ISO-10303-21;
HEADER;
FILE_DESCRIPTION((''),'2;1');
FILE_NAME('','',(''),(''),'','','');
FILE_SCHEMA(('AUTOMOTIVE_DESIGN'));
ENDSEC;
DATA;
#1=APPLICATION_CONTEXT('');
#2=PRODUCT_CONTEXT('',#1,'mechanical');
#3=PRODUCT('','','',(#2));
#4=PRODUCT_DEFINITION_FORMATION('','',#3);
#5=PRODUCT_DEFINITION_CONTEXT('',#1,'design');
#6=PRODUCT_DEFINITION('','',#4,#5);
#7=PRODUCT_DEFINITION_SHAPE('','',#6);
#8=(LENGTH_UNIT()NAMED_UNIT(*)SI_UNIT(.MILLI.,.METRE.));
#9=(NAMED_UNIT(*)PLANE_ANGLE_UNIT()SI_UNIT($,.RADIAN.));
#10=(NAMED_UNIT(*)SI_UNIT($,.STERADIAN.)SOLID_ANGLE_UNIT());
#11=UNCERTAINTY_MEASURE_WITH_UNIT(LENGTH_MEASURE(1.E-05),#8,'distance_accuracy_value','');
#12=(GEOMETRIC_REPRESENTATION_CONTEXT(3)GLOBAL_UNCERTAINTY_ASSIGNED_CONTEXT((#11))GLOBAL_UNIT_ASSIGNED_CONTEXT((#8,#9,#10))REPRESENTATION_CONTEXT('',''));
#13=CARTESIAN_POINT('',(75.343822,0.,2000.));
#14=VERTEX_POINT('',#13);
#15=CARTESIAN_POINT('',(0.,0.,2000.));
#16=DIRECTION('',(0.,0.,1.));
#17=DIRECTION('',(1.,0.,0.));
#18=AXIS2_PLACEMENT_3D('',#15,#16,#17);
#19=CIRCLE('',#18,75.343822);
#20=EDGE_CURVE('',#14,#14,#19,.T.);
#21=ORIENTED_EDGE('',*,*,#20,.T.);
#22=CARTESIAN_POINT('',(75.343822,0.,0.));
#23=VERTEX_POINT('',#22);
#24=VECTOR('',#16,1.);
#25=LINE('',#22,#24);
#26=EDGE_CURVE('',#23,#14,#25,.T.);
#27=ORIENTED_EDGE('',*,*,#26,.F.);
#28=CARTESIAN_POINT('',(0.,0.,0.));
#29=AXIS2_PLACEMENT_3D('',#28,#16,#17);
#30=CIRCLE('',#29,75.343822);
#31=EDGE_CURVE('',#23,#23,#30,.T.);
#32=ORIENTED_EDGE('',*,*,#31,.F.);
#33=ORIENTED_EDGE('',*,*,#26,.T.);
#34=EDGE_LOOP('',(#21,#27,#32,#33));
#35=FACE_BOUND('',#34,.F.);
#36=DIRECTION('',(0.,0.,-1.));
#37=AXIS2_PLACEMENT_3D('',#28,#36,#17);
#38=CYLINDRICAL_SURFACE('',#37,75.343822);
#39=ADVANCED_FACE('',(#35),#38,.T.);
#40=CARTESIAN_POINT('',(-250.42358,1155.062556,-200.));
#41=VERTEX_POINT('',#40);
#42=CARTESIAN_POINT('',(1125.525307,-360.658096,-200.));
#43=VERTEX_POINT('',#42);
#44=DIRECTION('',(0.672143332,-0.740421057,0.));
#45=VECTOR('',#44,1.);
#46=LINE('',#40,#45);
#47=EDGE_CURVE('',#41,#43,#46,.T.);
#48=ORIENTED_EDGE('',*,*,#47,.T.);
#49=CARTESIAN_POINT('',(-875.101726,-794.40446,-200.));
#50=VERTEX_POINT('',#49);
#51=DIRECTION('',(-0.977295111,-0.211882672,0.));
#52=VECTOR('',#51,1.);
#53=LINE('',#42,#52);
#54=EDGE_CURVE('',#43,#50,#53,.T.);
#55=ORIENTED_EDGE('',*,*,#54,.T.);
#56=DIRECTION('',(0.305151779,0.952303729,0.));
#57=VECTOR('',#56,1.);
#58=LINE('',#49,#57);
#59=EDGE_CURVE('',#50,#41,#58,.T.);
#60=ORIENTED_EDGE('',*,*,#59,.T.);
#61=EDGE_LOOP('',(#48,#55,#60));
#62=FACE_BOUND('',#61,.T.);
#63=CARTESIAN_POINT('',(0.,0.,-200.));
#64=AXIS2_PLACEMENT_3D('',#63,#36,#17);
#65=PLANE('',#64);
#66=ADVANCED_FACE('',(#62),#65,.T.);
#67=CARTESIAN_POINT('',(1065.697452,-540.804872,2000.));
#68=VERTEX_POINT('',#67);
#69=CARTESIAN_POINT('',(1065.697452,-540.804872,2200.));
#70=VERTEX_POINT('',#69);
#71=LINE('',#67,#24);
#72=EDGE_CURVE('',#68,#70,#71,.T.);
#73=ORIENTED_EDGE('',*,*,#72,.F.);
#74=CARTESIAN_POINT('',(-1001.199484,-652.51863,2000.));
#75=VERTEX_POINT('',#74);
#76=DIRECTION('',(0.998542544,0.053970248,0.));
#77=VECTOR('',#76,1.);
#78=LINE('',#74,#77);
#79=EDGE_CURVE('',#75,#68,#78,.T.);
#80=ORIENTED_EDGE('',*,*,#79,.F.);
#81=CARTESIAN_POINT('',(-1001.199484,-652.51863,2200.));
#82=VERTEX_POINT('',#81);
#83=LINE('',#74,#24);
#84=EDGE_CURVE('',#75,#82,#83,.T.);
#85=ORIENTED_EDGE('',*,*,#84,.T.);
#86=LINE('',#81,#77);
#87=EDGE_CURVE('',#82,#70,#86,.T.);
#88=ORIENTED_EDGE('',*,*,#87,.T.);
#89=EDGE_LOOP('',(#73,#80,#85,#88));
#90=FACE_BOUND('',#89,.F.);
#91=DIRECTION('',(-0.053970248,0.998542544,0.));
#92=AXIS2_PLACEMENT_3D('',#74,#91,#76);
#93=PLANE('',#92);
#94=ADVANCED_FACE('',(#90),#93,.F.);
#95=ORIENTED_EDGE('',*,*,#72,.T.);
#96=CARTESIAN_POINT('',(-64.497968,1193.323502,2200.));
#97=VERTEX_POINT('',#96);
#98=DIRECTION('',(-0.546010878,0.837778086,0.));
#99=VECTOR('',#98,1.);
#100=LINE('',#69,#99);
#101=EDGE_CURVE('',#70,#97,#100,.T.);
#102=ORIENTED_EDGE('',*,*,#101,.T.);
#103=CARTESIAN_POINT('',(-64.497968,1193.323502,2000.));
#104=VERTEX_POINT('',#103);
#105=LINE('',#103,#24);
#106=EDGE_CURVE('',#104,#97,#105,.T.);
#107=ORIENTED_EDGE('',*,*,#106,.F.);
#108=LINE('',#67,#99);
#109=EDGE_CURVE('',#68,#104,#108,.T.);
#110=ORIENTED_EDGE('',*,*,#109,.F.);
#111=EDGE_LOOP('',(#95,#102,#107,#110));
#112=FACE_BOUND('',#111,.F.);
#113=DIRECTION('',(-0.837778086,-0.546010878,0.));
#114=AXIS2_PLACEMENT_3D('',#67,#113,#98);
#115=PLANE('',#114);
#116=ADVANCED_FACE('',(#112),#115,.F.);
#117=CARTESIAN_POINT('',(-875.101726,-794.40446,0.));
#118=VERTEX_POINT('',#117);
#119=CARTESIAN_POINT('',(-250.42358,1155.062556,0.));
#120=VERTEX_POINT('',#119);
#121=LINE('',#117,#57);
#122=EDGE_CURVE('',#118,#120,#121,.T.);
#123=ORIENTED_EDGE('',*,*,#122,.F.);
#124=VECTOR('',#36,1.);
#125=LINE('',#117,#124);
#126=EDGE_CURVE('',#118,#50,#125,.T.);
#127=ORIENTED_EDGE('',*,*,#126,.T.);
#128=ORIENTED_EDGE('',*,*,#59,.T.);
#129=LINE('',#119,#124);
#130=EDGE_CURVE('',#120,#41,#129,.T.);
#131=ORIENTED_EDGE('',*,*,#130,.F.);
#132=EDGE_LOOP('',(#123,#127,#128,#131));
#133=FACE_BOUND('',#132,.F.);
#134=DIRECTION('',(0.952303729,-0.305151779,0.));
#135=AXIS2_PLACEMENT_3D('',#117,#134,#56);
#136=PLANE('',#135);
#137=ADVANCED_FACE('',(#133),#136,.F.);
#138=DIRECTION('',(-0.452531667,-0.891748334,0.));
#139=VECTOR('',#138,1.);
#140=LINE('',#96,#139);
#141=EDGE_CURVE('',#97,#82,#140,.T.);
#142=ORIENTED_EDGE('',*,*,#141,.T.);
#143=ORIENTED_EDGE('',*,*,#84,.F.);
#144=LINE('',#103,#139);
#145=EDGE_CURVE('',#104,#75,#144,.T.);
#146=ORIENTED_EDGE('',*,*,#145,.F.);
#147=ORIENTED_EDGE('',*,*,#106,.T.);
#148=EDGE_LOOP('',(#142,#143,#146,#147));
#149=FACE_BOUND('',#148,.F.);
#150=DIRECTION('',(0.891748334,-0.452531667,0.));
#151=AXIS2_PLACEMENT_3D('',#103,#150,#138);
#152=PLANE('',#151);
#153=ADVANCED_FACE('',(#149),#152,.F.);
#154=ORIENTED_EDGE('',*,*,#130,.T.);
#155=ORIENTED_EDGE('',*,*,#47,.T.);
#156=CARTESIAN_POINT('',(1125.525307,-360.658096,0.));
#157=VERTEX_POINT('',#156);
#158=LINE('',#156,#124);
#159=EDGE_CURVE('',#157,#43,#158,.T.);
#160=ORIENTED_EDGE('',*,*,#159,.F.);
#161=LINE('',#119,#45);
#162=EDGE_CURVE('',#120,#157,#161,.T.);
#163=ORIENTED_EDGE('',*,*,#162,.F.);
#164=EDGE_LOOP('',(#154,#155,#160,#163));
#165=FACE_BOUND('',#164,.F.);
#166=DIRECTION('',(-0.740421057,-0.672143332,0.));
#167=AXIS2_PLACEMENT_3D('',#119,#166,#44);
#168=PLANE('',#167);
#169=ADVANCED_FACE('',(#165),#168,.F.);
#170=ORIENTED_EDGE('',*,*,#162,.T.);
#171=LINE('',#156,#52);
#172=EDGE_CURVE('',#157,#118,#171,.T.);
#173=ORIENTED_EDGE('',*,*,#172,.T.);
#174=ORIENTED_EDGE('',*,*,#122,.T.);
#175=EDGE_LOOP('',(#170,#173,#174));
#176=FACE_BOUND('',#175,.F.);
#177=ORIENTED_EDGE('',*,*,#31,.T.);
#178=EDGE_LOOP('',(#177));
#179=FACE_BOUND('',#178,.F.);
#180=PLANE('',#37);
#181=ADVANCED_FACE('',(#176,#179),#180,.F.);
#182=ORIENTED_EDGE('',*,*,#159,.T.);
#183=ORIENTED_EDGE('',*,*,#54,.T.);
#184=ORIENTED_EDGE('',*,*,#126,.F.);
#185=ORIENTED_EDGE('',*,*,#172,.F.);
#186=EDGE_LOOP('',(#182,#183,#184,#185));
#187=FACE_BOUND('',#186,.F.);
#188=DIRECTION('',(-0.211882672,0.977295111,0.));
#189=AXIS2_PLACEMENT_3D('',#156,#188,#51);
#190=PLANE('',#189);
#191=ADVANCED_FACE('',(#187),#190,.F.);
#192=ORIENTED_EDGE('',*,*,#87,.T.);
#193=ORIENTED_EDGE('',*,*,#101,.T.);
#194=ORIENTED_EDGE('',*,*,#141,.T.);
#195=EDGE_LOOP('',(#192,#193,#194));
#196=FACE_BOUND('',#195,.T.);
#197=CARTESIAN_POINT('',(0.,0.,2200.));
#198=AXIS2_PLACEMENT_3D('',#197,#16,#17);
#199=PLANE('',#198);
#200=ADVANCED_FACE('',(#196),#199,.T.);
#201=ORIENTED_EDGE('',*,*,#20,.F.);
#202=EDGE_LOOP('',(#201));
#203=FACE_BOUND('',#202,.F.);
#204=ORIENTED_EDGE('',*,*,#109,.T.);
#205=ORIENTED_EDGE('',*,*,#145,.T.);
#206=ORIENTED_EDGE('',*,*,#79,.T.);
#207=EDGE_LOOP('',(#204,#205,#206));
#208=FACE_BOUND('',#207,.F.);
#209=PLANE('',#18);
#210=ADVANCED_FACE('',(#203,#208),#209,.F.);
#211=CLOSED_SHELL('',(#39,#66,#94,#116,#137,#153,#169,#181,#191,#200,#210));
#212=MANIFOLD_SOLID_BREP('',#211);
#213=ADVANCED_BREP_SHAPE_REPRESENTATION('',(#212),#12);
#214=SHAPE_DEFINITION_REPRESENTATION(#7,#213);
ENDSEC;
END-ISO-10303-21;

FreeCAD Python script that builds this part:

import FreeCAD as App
import Part
import Sketcher

V = App.Vector
Q = App.Units.Quantity

doc = App.newDocument("Part")
body = doc.addObject("PartDesign::Body", "Body")

sketch1 = body.newObject("Sketcher::SketchObject", "Sketch")
sketch1.AttachmentSupport = (doc.getObject("XY_Plane"), [""])
sketch1.MapMode = "FlatFace"
sketch1.addGeometry(Part.Circle(V(0, 0, 0), V(0, 0, 1), 75.343822), False)
sketch1.addConstraint(Sketcher.Constraint("Coincident", 0, 3, -1, 1))
sketch1.addConstraint(Sketcher.Constraint("Diameter", 0, Q("150.687644 mm")))
pad1 = body.newObject("PartDesign::Pad", "Pad")
pad1.Profile = sketch1
pad1.Length = 2000

sketch2 = body.newObject("Sketcher::SketchObject", "Sketch001")
sketch2.AttachmentSupport = (doc.getObject("XY_Plane"), [""])
sketch2.MapMode = "FlatFace"
sketch2.AttachmentOffset = App.Placement(V(0, 0, 2000), App.Rotation())
sketch2.addGeometry(Part.LineSegment(V(1065.697452, -540.804872, 0), V(-64.497968, 1193.323502, 0)), False)
sketch2.addGeometry(Part.LineSegment(V(-64.497968, 1193.323502, 0), V(-1001.199484, -652.51863, 0)), False)
sketch2.addGeometry(Part.LineSegment(V(-1001.199484, -652.51863, 0), V(1065.697452, -540.804872, 0)), False)
sketch2.addConstraint(Sketcher.Constraint("Coincident", 0, 2, 1, 1))
sketch2.addConstraint(Sketcher.Constraint("Coincident", 1, 2, 2, 1))
sketch2.addConstraint(Sketcher.Constraint("Coincident", 2, 2, 0, 1))
sketch2.addConstraint(Sketcher.Constraint("Equal", 0, 1))
sketch2.addConstraint(Sketcher.Constraint("Equal", 1, 2))
sketch2.addConstraint(Sketcher.Constraint("DistanceY", -1, 1, 0, 2, Q("1193.323502 mm")))
sketch2.addConstraint(Sketcher.Constraint("DistanceX", 0, 2, -1, 1, Q("64.497968 mm")))
sketch2.addConstraint(Sketcher.Constraint("DistanceY", 1, 2, -1, 1, Q("652.51863 mm")))
sketch2.addConstraint(Sketcher.Constraint("DistanceY", 2, 2, -1, 1, Q("540.804872 mm")))
pad2 = body.newObject("PartDesign::Pad", "Pad001")
pad2.Profile = sketch2
pad2.Length = 200

sketch3 = body.newObject("Sketcher::SketchObject", "Sketch002")
sketch3.AttachmentSupport = (doc.getObject("XY_Plane"), [""])
sketch3.MapMode = "FlatFace"
sketch3.addGeometry(Part.LineSegment(V(1125.525307, -360.658096, 0), V(-875.101726, -794.40446, 0)), False)
sketch3.addGeometry(Part.LineSegment(V(-875.101726, -794.40446, 0), V(-250.42358, 1155.062556, 0)), False)
sketch3.addGeometry(Part.LineSegment(V(-250.42358, 1155.062556, 0), V(1125.525307, -360.658096, 0)), False)
sketch3.addConstraint(Sketcher.Constraint("Coincident", 0, 2, 1, 1))
sketch3.addConstraint(Sketcher.Constraint("Coincident", 1, 2, 2, 1))
sketch3.addConstraint(Sketcher.Constraint("Coincident", 2, 2, 0, 1))
sketch3.addConstraint(Sketcher.Constraint("Equal", 0, 1))
sketch3.addConstraint(Sketcher.Constraint("Equal", 1, 2))
sketch3.addConstraint(Sketcher.Constraint("DistanceY", 0, 2, -1, 1, Q("794.40446 mm")))
sketch3.addConstraint(Sketcher.Constraint("DistanceX", 1, 2, -1, 1, Q("250.42358 mm")))
sketch3.addConstraint(Sketcher.Constraint("DistanceY", 2, 2, 1, 2, Q("1515.720652 mm")))
sketch3.addConstraint(Sketcher.Constraint("Distance", 0, Q("2047.106356 mm")))
pad3 = body.newObject("PartDesign::Pad", "Pad002")
pad3.Profile = sketch3
pad3.Length = 200
pad3.Reversed = True

doc.recompute()
